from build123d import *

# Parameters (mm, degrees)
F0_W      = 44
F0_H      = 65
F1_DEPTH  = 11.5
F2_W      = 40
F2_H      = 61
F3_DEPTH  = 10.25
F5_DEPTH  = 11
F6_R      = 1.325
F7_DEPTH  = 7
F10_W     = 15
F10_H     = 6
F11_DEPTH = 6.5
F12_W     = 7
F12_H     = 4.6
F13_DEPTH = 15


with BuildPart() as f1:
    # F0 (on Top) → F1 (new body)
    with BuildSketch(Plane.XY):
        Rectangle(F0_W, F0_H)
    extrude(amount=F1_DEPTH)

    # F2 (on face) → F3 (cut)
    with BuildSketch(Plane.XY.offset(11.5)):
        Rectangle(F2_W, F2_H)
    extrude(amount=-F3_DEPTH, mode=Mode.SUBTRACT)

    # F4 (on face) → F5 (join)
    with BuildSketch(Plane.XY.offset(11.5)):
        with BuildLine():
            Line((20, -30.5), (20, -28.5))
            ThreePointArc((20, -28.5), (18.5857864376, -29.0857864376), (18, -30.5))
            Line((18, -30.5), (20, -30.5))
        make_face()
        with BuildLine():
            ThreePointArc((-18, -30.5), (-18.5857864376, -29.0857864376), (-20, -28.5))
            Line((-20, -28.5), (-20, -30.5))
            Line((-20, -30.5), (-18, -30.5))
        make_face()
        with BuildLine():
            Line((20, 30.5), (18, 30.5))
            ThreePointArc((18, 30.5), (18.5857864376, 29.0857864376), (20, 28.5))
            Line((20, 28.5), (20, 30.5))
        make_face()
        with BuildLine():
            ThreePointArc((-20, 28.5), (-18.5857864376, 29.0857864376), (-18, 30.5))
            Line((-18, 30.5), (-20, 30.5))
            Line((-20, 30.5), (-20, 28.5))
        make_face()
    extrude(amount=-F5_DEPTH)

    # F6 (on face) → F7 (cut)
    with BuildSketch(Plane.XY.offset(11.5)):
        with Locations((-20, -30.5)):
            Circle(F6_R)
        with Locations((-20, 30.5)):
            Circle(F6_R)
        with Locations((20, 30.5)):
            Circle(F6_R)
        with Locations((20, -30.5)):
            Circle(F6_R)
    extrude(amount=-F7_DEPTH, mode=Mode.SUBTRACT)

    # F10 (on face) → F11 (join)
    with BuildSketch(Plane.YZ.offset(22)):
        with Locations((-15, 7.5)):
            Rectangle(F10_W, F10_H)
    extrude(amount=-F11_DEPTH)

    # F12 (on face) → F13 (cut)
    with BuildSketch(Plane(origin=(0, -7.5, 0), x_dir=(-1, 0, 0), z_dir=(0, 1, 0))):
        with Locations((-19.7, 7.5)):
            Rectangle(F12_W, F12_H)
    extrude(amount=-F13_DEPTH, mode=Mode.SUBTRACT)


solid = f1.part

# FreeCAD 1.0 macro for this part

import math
import FreeCAD as App
import Part
import Sketcher
Q = App.Units.Quantity


def add_polygon(sketch, points):
    """Adds a closed chain of lines whose ends are joined by coincident constraints."""
    first, n = sketch.GeometryCount, len(points)
    for a, b in zip(points, points[1:] + points[:1]):
        sketch.addGeometry(Part.LineSegment(App.Vector(*a, 0), App.Vector(*b, 0)), False)
    for i in range(n):
        sketch.addConstraint(Sketcher.Constraint("Coincident", first + i, 2, first + (i + 1) % n, 1))

doc = App.newDocument("Part")
body = doc.addObject("PartDesign::Body", "Body")

sketch1 = body.newObject("Sketcher::SketchObject", "Sketch")
sketch1.AttachmentSupport = (doc.getObject("XY_Plane"), [""])
sketch1.MapMode = "FlatFace"
add_polygon(sketch1, [(-22, 32.5), (-22, -32.5), (22, -32.5), (22, 32.5)])
sketch1.addConstraint([
    Sketcher.Constraint("Vertical", 0),
    Sketcher.Constraint("Horizontal", 1),
    Sketcher.Constraint("Vertical", 2),
    Sketcher.Constraint("Horizontal", 3),
    Sketcher.Constraint("Symmetric", 0, 2, 2, 2, -1, 1),
    Sketcher.Constraint("DistanceX", 1, 1, 1, 2, Q("44 mm")),
    Sketcher.Constraint("DistanceY", 0, 2, 0, 1, Q("65 mm")),
])
pad1 = body.newObject("PartDesign::Pad", "Pad")
pad1.Profile = sketch1
pad1.Length = 11.5

sketch2 = body.newObject("Sketcher::SketchObject", "Sketch001")
sketch2.AttachmentSupport = (doc.getObject("XY_Plane"), [""])
sketch2.MapMode = "FlatFace"
sketch2.AttachmentOffset = App.Placement(App.Vector(0, 0, 11.5), App.Rotation())
add_polygon(sketch2, [(-20, 30.5), (-20, -30.5), (20, -30.5), (20, 30.5)])
sketch2.addConstraint([
    Sketcher.Constraint("Vertical", 0),
    Sketcher.Constraint("Horizontal", 1),
    Sketcher.Constraint("Vertical", 2),
    Sketcher.Constraint("Horizontal", 3),
    Sketcher.Constraint("Symmetric", 0, 2, 2, 2, -1, 1),
    Sketcher.Constraint("DistanceX", 1, 1, 1, 2, Q("40 mm")),
    Sketcher.Constraint("DistanceY", 0, 2, 0, 1, Q("61 mm")),
])
pocket1 = body.newObject("PartDesign::Pocket", "Pocket")
pocket1.Profile = sketch2
pocket1.Length = 10.25

sketch3 = body.newObject("Sketcher::SketchObject", "Sketch002")
sketch3.AttachmentSupport = (doc.getObject("XY_Plane"), [""])
sketch3.MapMode = "FlatFace"
sketch3.AttachmentOffset = App.Placement(App.Vector(0, 0, 11.5), App.Rotation())
sketch3.addGeometry([
    Part.LineSegment(App.Vector(20, -30.5, 0), App.Vector(20, -28.5, 0)),
    Part.ArcOfCircle(Part.Circle(App.Vector(20, -30.5, 0), App.Vector(0, 0, 1), 2), math.radians(90), math.radians(180)),
    Part.LineSegment(App.Vector(18, -30.5, 0), App.Vector(20, -30.5, 0)),
    Part.ArcOfCircle(Part.Circle(App.Vector(-20, -30.5, 0), App.Vector(0, 0, 1), 2), math.radians(0), math.radians(90)),
    Part.LineSegment(App.Vector(-20, -28.5, 0), App.Vector(-20, -30.5, 0)),
    Part.LineSegment(App.Vector(-20, -30.5, 0), App.Vector(-18, -30.5, 0)),
    Part.LineSegment(App.Vector(20, 30.5, 0), App.Vector(18, 30.5, 0)),
    Part.ArcOfCircle(Part.Circle(App.Vector(20, 30.5, 0), App.Vector(0, 0, 1), 2), math.radians(180), math.radians(270)),
    Part.LineSegment(App.Vector(20, 28.5, 0), App.Vector(20, 30.5, 0)),
    Part.ArcOfCircle(Part.Circle(App.Vector(-20, 30.5, 0), App.Vector(0, 0, 1), 2), math.radians(-90), math.radians(0)),
    Part.LineSegment(App.Vector(-18, 30.5, 0), App.Vector(-20, 30.5, 0)),
    Part.LineSegment(App.Vector(-20, 30.5, 0), App.Vector(-20, 28.5, 0)),
], False)
sketch3.addConstraint([
    Sketcher.Constraint("Coincident", 0, 2, 1, 1),
    Sketcher.Constraint("Coincident", 1, 2, 2, 1),
    Sketcher.Constraint("Coincident", 2, 2, 0, 1),
    Sketcher.Constraint("Coincident", 3, 2, 4, 1),
    Sketcher.Constraint("Coincident", 4, 2, 5, 1),
    Sketcher.Constraint("Coincident", 5, 2, 3, 1),
    Sketcher.Constraint("Coincident", 6, 2, 7, 1),
    Sketcher.Constraint("Coincident", 7, 2, 8, 1),
    Sketcher.Constraint("Coincident", 8, 2, 6, 1),
    Sketcher.Constraint("Coincident", 9, 2, 10, 1),
    Sketcher.Constraint("Coincident", 10, 2, 11, 1),
    Sketcher.Constraint("Coincident", 11, 2, 9, 1),
    Sketcher.Constraint("Vertical", 0),
    Sketcher.Constraint("Horizontal", 2),
    Sketcher.Constraint("Vertical", 4),
    Sketcher.Constraint("Horizontal", 5),
    Sketcher.Constraint("Horizontal", 6),
    Sketcher.Constraint("Vertical", 8),
    Sketcher.Constraint("Horizontal", 10),
    Sketcher.Constraint("Vertical", 11),
    Sketcher.Constraint("Coincident", 2, 2, 1, 3),
    Sketcher.Constraint("Coincident", 4, 2, 3, 3),
    Sketcher.Constraint("Coincident", 8, 2, 7, 3),
    Sketcher.Constraint("Coincident", 10, 2, 9, 3),
    Sketcher.Constraint("Equal", 1, 3),
    Sketcher.Constraint("Equal", 3, 7),
    Sketcher.Constraint("Equal", 7, 9),
    Sketcher.Constraint("Symmetric", 3, 3, 7, 3, -1, 1),
    Sketcher.Constraint("Symmetric", 1, 3, 9, 3, -1, 1),
    Sketcher.Constraint("Symmetric", 1, 3, 3, 3, -2),
    Sketcher.Constraint("Radius", 1, Q("2 mm")),
    Sketcher.Constraint("DistanceX", -1, 1, 1, 3, Q("20 mm")),
    Sketcher.Constraint("DistanceY", 1, 3, 7, 3, Q("61 mm")),
])
pad2 = body.newObject("PartDesign::Pad", "Pad001")
pad2.Profile = sketch3
pad2.Length = 11
pad2.Reversed = True

sketch4 = body.newObject("Sketcher::SketchObject", "Sketch003")
sketch4.AttachmentSupport = (doc.getObject("XY_Plane"), [""])
sketch4.MapMode = "FlatFace"
sketch4.AttachmentOffset = App.Placement(App.Vector(0, 0, 11.5), App.Rotation())
sketch4.addGeometry([
    Part.Circle(App.Vector(-20, -30.5, 0), App.Vector(0, 0, 1), 1.325),
    Part.Circle(App.Vector(-20, 30.5, 0), App.Vector(0, 0, 1), 1.325),
    Part.Circle(App.Vector(20, 30.5, 0), App.Vector(0, 0, 1), 1.325),
    Part.Circle(App.Vector(20, -30.5, 0), App.Vector(0, 0, 1), 1.325),
], False)
sketch4.addConstraint([
    Sketcher.Constraint("Equal", 0, 1),
    Sketcher.Constraint("Equal", 1, 2),
    Sketcher.Constraint("Equal", 2, 3),
    Sketcher.Constraint("Symmetric", 0, 3, 2, 3, -1, 1),
    Sketcher.Constraint("Symmetric", 1, 3, 3, 3, -1, 1),
    Sketcher.Constraint("Symmetric", 1, 3, 2, 3, -2),
    Sketcher.Constraint("Diameter", 0, Q("2.65 mm")),
    Sketcher.Constraint("DistanceX", 0, 3, -1, 1, Q("20 mm")),
    Sketcher.Constraint("DistanceY", 0, 3, 1, 3, Q("61 mm")),
])
pocket2 = body.newObject("PartDesign::Pocket", "Pocket001")
pocket2.Profile = sketch4
pocket2.Length = 7

sketch5 = body.newObject("Sketcher::SketchObject", "Sketch004")
sketch5.AttachmentSupport = (doc.getObject("YZ_Plane"), [""])
sketch5.MapMode = "FlatFace"
sketch5.AttachmentOffset = App.Placement(App.Vector(0, 0, 22), App.Rotation())
add_polygon(sketch5, [(-22.5, 10.5), (-22.5, 4.5), (-7.5, 4.5), (-7.5, 10.5)])
sketch5.addConstraint([
    Sketcher.Constraint("Vertical", 0),
    Sketcher.Constraint("Horizontal", 1),
    Sketcher.Constraint("Vertical", 2),
    Sketcher.Constraint("Horizontal", 3),
    Sketcher.Constraint("DistanceX", 1, 1, 1, 2, Q("15 mm")),
    Sketcher.Constraint("DistanceY", 0, 2, 0, 1, Q("6 mm")),
    Sketcher.Constraint("DistanceX", 0, 2, -1, 1, Q("22.5 mm")),
    Sketcher.Constraint("DistanceY", -1, 1, 0, 2, Q("4.5 mm")),
])
pad3 = body.newObject("PartDesign::Pad", "Pad002")
pad3.Profile = sketch5
pad3.Length = 6.5
pad3.Reversed = True

sketch6 = body.newObject("Sketcher::SketchObject", "Sketch005")
sketch6.AttachmentSupport = (doc.getObject("XZ_Plane"), [""])
sketch6.MapMode = "FlatFace"
sketch6.AttachmentOffset = App.Placement(App.Vector(0, 0, 7.5), App.Rotation())
add_polygon(sketch6, [(23.2, 9.8), (23.2, 5.2), (16.2, 5.2), (16.2, 9.8)])
sketch6.addConstraint([
    Sketcher.Constraint("Vertical", 0),
    Sketcher.Constraint("Horizontal", 1),
    Sketcher.Constraint("Vertical", 2),
    Sketcher.Constraint("Horizontal", 3),
    Sketcher.Constraint("DistanceX", 1, 2, 1, 1, Q("7 mm")),
    Sketcher.Constraint("DistanceY", 0, 2, 0, 1, Q("4.6 mm")),
    Sketcher.Constraint("DistanceX", -1, 1, 0, 2, Q("23.2 mm")),
    Sketcher.Constraint("DistanceY", -1, 1, 0, 2, Q("5.2 mm")),
])
pocket3 = body.newObject("PartDesign::Pocket", "Pocket002")
pocket3.Profile = sketch6
pocket3.Length = 15
pocket3.Reversed = True

doc.recompute()
